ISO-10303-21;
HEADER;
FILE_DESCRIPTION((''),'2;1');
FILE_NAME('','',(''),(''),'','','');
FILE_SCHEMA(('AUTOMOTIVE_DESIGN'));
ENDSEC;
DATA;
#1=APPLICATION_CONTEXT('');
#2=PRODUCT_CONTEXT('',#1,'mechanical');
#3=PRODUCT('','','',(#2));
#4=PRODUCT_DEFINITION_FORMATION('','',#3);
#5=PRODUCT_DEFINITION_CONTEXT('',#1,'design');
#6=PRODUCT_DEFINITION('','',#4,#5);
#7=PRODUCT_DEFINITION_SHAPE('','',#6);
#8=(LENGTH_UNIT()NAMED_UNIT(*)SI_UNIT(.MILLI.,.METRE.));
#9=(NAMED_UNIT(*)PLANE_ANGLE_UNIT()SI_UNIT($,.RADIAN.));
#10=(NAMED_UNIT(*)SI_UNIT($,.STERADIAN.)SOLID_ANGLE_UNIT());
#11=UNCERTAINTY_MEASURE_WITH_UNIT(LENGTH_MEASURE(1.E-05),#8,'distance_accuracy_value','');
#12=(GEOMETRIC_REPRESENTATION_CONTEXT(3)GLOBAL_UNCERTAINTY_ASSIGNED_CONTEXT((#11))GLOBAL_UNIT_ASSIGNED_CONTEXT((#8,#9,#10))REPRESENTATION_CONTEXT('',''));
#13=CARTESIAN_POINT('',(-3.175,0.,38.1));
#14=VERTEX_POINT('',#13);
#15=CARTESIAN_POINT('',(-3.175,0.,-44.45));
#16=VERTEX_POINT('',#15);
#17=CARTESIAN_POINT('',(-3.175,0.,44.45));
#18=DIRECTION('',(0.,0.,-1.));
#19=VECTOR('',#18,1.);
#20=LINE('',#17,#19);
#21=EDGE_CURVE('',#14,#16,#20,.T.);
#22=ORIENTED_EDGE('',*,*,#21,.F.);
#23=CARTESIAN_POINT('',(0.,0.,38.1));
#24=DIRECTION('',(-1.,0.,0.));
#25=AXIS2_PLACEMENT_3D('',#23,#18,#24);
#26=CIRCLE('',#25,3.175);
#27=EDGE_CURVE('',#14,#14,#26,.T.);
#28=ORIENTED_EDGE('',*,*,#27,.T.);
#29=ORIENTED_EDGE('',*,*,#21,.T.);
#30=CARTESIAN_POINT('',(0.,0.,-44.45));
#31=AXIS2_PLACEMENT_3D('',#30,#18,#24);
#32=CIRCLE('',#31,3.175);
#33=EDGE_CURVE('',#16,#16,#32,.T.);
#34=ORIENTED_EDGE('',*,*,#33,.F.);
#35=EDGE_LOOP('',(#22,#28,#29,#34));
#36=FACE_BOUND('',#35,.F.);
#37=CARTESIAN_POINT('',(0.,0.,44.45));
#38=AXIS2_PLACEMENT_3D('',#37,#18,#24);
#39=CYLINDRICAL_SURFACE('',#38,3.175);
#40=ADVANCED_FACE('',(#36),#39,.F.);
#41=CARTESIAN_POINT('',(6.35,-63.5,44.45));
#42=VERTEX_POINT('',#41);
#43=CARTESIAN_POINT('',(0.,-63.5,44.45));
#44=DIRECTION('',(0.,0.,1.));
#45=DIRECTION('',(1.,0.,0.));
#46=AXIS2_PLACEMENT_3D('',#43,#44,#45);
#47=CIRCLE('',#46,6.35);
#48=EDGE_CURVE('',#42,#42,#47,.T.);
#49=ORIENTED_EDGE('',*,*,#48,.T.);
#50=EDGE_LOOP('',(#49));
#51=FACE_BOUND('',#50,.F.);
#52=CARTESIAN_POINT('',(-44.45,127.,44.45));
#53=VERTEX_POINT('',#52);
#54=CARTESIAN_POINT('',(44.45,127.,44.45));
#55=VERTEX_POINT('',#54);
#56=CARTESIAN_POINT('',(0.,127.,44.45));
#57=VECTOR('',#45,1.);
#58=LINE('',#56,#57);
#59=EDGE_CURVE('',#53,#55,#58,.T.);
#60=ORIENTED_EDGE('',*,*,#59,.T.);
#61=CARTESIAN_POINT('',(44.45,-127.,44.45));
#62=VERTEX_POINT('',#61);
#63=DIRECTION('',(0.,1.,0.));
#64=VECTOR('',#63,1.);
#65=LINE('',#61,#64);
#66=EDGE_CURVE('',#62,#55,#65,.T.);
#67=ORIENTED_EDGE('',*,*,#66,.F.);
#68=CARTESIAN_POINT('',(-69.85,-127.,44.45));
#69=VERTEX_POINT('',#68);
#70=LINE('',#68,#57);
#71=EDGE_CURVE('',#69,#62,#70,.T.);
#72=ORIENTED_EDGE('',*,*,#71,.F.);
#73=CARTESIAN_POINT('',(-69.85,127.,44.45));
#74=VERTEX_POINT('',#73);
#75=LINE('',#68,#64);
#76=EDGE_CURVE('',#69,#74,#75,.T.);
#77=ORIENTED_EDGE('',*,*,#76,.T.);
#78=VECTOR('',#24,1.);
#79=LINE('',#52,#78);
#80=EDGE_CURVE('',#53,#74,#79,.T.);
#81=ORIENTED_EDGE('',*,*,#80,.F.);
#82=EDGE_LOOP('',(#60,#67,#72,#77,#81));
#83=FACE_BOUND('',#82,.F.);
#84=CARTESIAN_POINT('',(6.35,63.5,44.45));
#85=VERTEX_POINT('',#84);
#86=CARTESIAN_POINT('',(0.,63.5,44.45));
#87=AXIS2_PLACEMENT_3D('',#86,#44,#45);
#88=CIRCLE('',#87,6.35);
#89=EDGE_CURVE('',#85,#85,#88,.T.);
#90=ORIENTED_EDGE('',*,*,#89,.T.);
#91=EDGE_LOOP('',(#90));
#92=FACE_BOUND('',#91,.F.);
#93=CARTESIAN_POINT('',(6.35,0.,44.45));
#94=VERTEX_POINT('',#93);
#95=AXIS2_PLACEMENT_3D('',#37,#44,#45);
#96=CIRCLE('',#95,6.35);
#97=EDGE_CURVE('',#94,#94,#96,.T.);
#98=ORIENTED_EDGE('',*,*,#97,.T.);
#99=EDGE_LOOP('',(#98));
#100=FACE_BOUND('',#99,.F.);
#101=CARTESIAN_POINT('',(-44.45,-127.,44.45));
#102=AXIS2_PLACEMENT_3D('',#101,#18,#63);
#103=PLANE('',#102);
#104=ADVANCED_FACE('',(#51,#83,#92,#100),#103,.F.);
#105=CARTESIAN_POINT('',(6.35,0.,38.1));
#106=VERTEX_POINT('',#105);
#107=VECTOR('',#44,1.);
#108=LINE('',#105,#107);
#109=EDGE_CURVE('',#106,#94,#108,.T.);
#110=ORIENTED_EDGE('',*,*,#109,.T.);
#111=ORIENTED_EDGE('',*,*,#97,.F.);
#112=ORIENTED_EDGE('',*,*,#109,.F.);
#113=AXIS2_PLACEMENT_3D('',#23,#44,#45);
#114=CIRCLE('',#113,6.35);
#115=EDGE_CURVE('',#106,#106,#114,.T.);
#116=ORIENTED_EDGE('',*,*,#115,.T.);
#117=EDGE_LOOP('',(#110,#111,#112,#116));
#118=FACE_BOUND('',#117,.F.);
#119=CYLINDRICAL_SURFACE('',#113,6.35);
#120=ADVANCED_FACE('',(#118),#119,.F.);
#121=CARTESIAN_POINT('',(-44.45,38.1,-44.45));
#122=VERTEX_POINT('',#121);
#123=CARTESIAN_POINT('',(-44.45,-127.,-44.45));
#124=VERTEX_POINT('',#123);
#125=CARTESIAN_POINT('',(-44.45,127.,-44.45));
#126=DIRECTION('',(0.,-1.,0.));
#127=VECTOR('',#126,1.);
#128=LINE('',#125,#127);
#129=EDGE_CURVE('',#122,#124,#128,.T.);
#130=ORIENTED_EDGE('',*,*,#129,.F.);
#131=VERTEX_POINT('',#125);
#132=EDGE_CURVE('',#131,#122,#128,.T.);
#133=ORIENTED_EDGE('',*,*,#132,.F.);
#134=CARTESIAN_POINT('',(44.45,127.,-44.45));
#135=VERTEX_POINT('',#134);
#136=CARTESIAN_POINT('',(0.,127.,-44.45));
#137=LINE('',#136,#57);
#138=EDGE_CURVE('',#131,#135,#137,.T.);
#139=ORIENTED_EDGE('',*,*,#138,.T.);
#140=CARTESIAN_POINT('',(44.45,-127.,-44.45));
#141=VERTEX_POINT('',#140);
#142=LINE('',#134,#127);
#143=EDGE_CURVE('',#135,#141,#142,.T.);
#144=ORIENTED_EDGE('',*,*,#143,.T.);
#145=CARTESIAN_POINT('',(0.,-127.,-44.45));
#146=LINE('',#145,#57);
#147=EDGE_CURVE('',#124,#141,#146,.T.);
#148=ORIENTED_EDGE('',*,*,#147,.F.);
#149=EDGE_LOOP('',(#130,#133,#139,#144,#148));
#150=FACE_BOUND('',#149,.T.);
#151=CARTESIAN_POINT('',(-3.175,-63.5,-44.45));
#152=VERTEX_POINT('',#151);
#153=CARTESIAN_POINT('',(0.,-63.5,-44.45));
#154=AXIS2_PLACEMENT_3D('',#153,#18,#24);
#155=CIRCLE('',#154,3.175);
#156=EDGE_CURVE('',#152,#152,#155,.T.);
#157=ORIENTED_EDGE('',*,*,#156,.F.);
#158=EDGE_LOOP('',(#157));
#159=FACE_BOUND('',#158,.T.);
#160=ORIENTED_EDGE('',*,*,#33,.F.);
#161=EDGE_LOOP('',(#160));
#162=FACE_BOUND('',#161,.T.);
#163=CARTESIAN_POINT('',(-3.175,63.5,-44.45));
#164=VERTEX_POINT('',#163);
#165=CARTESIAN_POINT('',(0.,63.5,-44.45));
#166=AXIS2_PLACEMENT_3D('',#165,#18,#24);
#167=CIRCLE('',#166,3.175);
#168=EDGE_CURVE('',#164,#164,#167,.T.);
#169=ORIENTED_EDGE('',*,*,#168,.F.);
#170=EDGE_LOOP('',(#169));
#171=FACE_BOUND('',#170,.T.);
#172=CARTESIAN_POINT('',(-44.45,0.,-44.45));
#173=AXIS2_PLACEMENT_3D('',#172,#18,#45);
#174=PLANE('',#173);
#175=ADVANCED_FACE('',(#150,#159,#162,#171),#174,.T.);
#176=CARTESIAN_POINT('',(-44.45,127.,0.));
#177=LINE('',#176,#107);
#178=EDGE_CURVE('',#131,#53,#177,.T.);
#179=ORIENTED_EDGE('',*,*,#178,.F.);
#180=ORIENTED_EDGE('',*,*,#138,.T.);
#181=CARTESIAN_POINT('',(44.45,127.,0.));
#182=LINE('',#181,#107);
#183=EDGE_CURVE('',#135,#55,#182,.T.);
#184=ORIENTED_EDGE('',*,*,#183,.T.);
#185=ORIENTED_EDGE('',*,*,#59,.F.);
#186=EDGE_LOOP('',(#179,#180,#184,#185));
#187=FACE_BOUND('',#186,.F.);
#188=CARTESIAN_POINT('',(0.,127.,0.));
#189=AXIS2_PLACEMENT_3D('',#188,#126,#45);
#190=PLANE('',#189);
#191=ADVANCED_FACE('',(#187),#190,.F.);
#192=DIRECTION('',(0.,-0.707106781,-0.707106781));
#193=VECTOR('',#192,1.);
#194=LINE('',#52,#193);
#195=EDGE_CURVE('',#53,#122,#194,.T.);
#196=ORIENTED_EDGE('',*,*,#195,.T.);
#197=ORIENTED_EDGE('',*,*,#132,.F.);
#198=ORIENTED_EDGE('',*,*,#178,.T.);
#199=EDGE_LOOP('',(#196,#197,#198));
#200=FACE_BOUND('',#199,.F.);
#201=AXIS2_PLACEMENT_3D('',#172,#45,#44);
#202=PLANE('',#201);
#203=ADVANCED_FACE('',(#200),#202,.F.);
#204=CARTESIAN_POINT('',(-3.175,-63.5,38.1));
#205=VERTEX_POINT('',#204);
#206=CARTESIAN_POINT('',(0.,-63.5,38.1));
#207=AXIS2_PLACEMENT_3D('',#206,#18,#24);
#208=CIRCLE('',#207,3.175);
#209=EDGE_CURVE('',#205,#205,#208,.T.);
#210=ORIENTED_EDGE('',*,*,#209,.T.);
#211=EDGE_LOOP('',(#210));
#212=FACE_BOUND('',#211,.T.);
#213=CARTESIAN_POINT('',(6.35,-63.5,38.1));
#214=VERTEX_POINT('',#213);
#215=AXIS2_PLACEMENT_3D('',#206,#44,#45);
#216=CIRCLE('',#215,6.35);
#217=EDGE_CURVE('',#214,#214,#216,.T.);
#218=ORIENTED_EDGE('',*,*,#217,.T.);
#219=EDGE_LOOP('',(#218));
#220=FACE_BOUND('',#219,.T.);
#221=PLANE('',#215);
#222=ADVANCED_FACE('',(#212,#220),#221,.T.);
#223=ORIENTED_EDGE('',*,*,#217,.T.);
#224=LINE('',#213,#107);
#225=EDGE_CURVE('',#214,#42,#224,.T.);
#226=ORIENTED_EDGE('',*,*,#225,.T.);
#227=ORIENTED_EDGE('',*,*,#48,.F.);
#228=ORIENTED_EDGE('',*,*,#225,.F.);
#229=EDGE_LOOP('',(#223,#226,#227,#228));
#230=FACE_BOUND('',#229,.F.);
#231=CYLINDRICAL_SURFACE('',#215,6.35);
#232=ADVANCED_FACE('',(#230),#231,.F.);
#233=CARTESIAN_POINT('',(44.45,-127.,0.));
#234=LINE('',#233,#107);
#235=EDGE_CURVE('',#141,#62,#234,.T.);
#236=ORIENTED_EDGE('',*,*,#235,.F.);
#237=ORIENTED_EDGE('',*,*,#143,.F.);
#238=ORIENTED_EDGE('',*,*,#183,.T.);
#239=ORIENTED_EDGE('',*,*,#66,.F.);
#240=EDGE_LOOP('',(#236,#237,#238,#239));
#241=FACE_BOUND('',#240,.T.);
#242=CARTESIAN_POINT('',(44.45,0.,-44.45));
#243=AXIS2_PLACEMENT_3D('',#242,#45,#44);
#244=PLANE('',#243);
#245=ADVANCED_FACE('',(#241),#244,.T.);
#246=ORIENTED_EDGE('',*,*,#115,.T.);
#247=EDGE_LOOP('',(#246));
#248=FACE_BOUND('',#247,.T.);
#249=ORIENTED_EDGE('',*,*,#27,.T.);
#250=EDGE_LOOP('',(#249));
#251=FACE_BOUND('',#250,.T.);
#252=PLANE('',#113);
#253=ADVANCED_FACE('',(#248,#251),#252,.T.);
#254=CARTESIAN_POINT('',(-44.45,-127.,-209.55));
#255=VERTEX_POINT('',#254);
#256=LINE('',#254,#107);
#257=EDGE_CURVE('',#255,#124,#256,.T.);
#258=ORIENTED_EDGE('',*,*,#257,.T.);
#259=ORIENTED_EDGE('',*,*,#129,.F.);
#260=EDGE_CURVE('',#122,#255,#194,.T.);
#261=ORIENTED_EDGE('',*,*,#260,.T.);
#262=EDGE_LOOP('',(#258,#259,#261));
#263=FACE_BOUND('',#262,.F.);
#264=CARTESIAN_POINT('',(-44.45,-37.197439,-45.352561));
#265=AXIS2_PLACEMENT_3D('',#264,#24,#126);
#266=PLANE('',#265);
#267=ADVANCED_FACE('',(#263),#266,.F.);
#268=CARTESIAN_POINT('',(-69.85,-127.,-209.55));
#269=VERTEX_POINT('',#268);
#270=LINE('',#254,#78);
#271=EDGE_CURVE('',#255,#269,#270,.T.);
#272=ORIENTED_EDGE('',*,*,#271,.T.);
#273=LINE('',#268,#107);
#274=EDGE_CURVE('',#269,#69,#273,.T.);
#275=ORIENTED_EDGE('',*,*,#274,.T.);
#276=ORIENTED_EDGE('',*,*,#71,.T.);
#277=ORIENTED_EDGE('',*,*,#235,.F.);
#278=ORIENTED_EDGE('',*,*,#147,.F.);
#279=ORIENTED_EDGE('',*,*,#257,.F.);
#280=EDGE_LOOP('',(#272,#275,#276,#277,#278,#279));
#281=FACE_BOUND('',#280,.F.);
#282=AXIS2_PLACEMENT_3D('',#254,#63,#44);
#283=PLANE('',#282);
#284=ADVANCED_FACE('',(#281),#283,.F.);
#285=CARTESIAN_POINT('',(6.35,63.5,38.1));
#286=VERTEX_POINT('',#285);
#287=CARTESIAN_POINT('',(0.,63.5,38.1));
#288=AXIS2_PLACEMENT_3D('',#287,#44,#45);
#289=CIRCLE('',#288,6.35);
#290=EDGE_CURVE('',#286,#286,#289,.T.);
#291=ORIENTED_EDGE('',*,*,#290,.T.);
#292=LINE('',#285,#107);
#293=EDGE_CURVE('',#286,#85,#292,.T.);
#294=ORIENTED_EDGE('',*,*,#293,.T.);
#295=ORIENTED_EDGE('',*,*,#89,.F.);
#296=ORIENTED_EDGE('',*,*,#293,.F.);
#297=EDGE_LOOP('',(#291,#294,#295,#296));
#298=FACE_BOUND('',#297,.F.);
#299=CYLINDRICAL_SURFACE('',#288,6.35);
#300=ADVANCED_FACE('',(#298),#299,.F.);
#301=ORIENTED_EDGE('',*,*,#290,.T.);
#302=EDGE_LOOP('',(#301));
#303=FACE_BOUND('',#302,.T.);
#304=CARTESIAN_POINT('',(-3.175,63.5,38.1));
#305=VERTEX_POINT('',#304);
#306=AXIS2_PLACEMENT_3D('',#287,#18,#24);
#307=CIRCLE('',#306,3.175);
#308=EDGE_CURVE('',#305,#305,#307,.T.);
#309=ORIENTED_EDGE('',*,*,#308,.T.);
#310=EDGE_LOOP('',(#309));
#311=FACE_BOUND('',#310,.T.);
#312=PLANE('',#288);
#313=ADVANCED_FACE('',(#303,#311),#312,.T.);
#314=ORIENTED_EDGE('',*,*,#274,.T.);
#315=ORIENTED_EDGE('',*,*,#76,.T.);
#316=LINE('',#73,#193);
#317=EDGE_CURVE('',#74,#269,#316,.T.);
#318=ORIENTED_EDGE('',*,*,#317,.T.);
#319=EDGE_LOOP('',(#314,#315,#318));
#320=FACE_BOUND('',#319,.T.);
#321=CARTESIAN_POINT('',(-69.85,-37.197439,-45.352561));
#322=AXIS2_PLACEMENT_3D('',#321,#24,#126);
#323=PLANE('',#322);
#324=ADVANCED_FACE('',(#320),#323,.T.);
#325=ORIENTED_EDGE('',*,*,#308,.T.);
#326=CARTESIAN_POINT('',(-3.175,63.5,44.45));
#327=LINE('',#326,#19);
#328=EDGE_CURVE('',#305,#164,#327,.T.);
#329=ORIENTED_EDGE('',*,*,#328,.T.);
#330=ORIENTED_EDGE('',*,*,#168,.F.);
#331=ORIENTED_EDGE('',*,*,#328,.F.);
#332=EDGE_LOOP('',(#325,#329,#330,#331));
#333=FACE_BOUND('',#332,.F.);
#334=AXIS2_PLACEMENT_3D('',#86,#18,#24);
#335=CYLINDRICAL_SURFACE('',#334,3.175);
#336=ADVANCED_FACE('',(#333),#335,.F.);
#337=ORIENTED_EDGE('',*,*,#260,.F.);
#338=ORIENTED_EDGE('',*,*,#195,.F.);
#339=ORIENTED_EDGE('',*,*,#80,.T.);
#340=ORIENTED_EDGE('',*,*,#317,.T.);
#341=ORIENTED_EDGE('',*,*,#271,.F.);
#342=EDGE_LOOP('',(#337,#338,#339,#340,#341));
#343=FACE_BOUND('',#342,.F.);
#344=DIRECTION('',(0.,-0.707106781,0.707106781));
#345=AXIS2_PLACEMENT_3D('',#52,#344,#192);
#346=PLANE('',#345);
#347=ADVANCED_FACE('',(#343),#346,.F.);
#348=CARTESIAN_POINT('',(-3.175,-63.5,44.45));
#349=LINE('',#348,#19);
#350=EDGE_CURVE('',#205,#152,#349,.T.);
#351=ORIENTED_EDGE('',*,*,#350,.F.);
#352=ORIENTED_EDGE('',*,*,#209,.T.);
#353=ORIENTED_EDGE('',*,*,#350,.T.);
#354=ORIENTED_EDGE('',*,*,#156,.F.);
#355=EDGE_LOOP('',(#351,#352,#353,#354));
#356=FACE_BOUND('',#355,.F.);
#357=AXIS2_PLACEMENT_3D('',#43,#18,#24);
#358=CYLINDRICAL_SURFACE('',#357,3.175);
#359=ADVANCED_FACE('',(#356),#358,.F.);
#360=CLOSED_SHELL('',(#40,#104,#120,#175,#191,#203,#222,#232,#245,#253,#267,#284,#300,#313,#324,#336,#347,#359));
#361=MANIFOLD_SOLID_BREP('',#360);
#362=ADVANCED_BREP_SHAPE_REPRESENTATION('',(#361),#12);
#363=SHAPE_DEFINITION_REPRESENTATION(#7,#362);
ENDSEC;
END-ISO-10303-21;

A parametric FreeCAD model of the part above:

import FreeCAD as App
import Part
import Sketcher
Q = App.Units.Quantity


def add_polygon(sketch, points):
    """Adds a closed chain of lines whose ends are joined by coincident constraints."""
    first, n = sketch.GeometryCount, len(points)
    for a, b in zip(points, points[1:] + points[:1]):
        sketch.addGeometry(Part.LineSegment(App.Vector(*a, 0), App.Vector(*b, 0)), False)
    for i in range(n):
        sketch.addConstraint(Sketcher.Constraint("Coincident", first + i, 2, first + (i + 1) % n, 1))

doc = App.newDocument("Part")
body = doc.addObject("PartDesign::Body", "Body")

# Sketch on XZ plane
sketch1 = doc.addObject("Sketcher::SketchObject", "Sketch")
body.addObject(sketch1)
sketch1.AttachmentSupport = (doc.XZ_Plane, [""])
sketch1.MapMode = "FlatFace"
add_polygon(sketch1, [(-44, 44), (-44, -44), (44, -44), (44, 44)])  # lines 0-3
sketch1.addConstraint([
    Sketcher.Constraint("Vertical", 0),
    Sketcher.Constraint("Horizontal", 1),
    Sketcher.Constraint("Vertical", 2),
    Sketcher.Constraint("Horizontal", 3),
    Sketcher.Constraint("Symmetric", 0, 2, 2, 2, -1, 1),
    Sketcher.Constraint("Equal", 3, 0),
    Sketcher.Constraint("DistanceX", 1, 1, 1, 2, Q("3.5 in")),
])
pad1 = doc.addObject("PartDesign::Pad", "Pad")
body.addObject(pad1)
pad1.Profile = sketch1
pad1.Length = Q("10 in")
pad1.Midplane = True

# Sketch on XY plane
sketch2 = doc.addObject("Sketcher::SketchObject", "Sketch001")
body.addObject(sketch2)
sketch2.AttachmentSupport = (doc.XY_Plane, [""])
sketch2.MapMode = "FlatFace"
sketch2.AttachmentOffset = App.Placement(App.Vector(0, 0, 1.75 * 25.4), App.Rotation())
sketch2.addGeometry([
    Part.Circle(App.Vector(0, 63.5, 0), App.Vector(0, 0, 1), 3.2),
    Part.Circle(App.Vector(0, 0, 0), App.Vector(0, 0, 1), 3.2),
    Part.Circle(App.Vector(0, -63.5, 0), App.Vector(0, 0, 1), 3.2),
], False)
sketch2.addConstraint([
    Sketcher.Constraint("Coincident", 1, 3, -1, 1),
    Sketcher.Constraint("Equal", 0, 1),
    Sketcher.Constraint("Equal", 1, 2),
    Sketcher.Constraint("Symmetric", 0, 3, 2, 3, -1, 1),
    Sketcher.Constraint("PointOnObject", 0, 3, -2),
    Sketcher.Constraint("Diameter", 0, Q("0.25 in")),
    Sketcher.Constraint("DistanceY", 2, 3, 0, 3, Q("5 in")),
])
doc.recompute()
hole = doc.addObject("PartDesign::Hole", "Hole")
body.addObject(hole)
hole.Profile = sketch2
hole.ThreadType = "None"
hole.Diameter = Q("0.25 in")
hole.DepthType = "ThroughAll"
hole.HoleCutType = "Counterbore"
hole.HoleCutDiameter = Q("0.5 in")
hole.HoleCutDepth = Q("0.25 in")

# Sketch on YZ plane
sketch3 = doc.addObject("Sketcher::SketchObject", "Sketch002")
body.addObject(sketch3)
sketch3.AttachmentSupport = (doc.YZ_Plane, [""])
sketch3.MapMode = "FlatFace"
sketch3.AttachmentOffset = App.Placement(App.Vector(0, 0, -1.75 * 25.4), App.Rotation())
add_polygon(sketch3, [(-127, 44), (127, 44), (-127, -210)])  # lines 0-2
sketch3.addConstraint([
    Sketcher.Constraint("Horizontal", 0),
    Sketcher.Constraint("Vertical", 2),
    Sketcher.Constraint("Equal", 0, 2),
    Sketcher.Constraint("DistanceX", 0, 1, 0, 2, Q("10 in")),
    Sketcher.Constraint("DistanceX", -1, 1, 0, 2, Q("5 in")),
    Sketcher.Constraint("DistanceY", -1, 1, 0, 2, Q("1.75 in")),
])
pad2 = doc.addObject("PartDesign::Pad", "Pad001")
body.addObject(pad2)
pad2.Profile = sketch3
pad2.Length = Q("1 in")
pad2.Reversed = True

doc.recompute()
